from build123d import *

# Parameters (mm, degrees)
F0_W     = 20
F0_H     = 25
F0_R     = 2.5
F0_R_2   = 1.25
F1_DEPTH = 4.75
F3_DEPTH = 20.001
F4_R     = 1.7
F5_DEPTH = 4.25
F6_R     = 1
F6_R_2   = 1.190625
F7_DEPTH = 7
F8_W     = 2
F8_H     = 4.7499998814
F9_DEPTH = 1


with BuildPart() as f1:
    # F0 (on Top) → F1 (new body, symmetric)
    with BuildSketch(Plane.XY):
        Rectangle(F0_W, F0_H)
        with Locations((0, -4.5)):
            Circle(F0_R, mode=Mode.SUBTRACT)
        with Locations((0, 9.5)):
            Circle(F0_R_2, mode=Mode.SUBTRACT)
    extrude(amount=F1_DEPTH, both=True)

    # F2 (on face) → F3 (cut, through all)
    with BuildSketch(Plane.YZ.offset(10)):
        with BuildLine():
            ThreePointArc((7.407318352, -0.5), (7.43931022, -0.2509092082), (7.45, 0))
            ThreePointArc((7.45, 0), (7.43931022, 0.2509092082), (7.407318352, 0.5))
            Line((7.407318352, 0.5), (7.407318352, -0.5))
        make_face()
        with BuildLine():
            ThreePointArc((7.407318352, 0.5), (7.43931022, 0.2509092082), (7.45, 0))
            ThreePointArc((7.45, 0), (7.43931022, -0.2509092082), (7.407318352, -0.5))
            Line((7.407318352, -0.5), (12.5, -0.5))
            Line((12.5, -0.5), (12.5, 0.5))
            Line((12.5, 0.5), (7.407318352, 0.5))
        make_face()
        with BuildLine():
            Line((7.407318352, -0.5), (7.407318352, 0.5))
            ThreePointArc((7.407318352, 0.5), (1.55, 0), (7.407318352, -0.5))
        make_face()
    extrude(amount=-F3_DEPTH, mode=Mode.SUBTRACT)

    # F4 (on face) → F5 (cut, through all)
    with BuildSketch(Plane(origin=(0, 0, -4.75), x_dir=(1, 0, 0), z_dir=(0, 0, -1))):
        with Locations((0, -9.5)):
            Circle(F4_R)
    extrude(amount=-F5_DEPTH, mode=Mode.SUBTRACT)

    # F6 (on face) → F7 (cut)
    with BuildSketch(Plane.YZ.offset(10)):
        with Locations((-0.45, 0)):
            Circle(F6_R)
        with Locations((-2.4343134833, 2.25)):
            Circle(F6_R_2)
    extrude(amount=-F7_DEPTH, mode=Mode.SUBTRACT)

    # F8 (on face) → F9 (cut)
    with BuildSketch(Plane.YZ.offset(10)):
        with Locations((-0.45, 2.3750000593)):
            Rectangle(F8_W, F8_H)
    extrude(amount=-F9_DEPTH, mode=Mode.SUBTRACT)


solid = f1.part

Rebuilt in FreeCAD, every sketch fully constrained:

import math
import FreeCAD as App
import Part
import Sketcher
from FreeCAD import Vector

doc = App.newDocument("Part")
body = doc.addObject("PartDesign::Body", "Body")

sketch1 = body.newObject("Sketcher::SketchObject", "Sketch")
sketch1.AttachmentSupport = (doc.getObject("XY_Plane"), [""])
sketch1.MapMode = "FlatFace"
sketch1.addGeometry([
    Part.LineSegment(Vector(-10, 12.5, 0), Vector(-10, -12.5, 0)),
    Part.LineSegment(Vector(-10, -12.5, 0), Vector(10, -12.5, 0)),
    Part.LineSegment(Vector(10, -12.5, 0), Vector(10, 12.5, 0)),
    Part.LineSegment(Vector(10, 12.5, 0), Vector(-10, 12.5, 0)),
    Part.Circle(Vector(0, -4.5, 0), Vector(0, 0, 1), 2.5),
    Part.Circle(Vector(0, 9.5, 0), Vector(0, 0, 1), 1.2),
], False)
sketch1.addConstraint([
    Sketcher.Constraint("Coincident", 0, 2, 1, 1),
    Sketcher.Constraint("Coincident", 1, 2, 2, 1),
    Sketcher.Constraint("Coincident", 2, 2, 3, 1),
    Sketcher.Constraint("Coincident", 3, 2, 0, 1),
    Sketcher.Constraint("Vertical", 0),
    Sketcher.Constraint("Horizontal", 1),
    Sketcher.Constraint("Vertical", 2),
    Sketcher.Constraint("Horizontal", 3),
    Sketcher.Constraint("Symmetric", 0, 2, 2, 2, -1, 1),
    Sketcher.Constraint("PointOnObject", 4, 3, -2),
    Sketcher.Constraint("PointOnObject", 5, 3, -2),
    Sketcher.Constraint("Diameter", 4, 5.0),
    Sketcher.Constraint("Diameter", 5, 2.5),
    Sketcher.Constraint("DistanceX", 1, 1, 1, 2, 20.0),
    Sketcher.Constraint("DistanceY", 0, 2, 0, 1, 25.0),
    Sketcher.Constraint("DistanceY", 4, 3, 5, 3, 14.0),
    Sketcher.Constraint("DistanceY", 0, 2, 4, 3, 8.0),
])
pad1 = body.newObject("PartDesign::Pad", "Pad")
pad1.Profile = sketch1
pad1.Length = 9.5
pad1.Midplane = True

sketch2 = body.newObject("Sketcher::SketchObject", "Sketch001")
sketch2.AttachmentSupport = (doc.getObject("YZ_Plane"), [""])
sketch2.MapMode = "FlatFace"
sketch2.AttachmentOffset = App.Placement(Vector(0, 0, 10), App.Rotation())
sketch2.addGeometry([
    Part.LineSegment(Vector(7.4, -0.5, 0), Vector(12.5, -0.5, 0)),
    Part.LineSegment(Vector(12.5, -0.5, 0), Vector(12.5, 0.5, 0)),
    Part.LineSegment(Vector(12.5, 0.5, 0), Vector(7.4, 0.5, 0)),
    Part.ArcOfCircle(Part.Circle(Vector(4.5, 0, 0), Vector(0, 0, 1), 3), math.radians(10), math.radians(350)),
], False)
sketch2.addConstraint([
    Sketcher.Constraint("Coincident", 0, 2, 1, 1),
    Sketcher.Constraint("Coincident", 1, 2, 2, 1),
    Sketcher.Constraint("Coincident", 2, 2, 3, 1),
    Sketcher.Constraint("Coincident", 3, 2, 0, 1),
    Sketcher.Constraint("Horizontal", 0),
    Sketcher.Constraint("Vertical", 1),
    Sketcher.Constraint("Horizontal", 2),
    Sketcher.Constraint("Symmetric", 2, 2, 3, 2, -1),
    Sketcher.Constraint("DistanceY", 1, 1, 1, 2, 1.0),
    Sketcher.Constraint("Radius", 3, 2.95),
    Sketcher.Constraint("DistanceX", 3, 3, 0, 2, 8.0),
    Sketcher.Constraint("DistanceX", -1, 1, 3, 3, 4.5),
])
pocket1 = body.newObject("PartDesign::Pocket", "Pocket")
pocket1.Profile = sketch2
pocket1.Type = "ThroughAll"

sketch3 = body.newObject("Sketcher::SketchObject", "Sketch002")
sketch3.AttachmentSupport = (doc.getObject("XY_Plane"), [""])
sketch3.MapMode = "FlatFace"
sketch3.AttachmentOffset = App.Placement(Vector(0, 0, -4.75), App.Rotation())
sketch3.addGeometry(Part.Circle(Vector(0, 9.5, 0), Vector(0, 0, 1), 1.7), False)
sketch3.addConstraint([
    Sketcher.Constraint("PointOnObject", 0, 3, -2),
    Sketcher.Constraint("Diameter", 0, 3.4),
    Sketcher.Constraint("DistanceY", -1, 1, 0, 3, 9.5),
])
pocket2 = body.newObject("PartDesign::Pocket", "Pocket001")
pocket2.Profile = sketch3
pocket2.Length = 4.25
pocket2.Reversed = True

sketch4 = body.newObject("Sketcher::SketchObject", "Sketch003")
sketch4.AttachmentSupport = (doc.getObject("YZ_Plane"), [""])
sketch4.MapMode = "FlatFace"
sketch4.AttachmentOffset = App.Placement(Vector(0, 0, 10), App.Rotation())
sketch4.addGeometry([
    Part.Circle(Vector(-0.5, 0, 0), Vector(0, 0, 1), 1),
    Part.Circle(Vector(-2.4, 2.2, 0), Vector(0, 0, 1), 1.2),
], False)
sketch4.addConstraint([
    Sketcher.Constraint("PointOnObject", 0, 3, -1),
    Sketcher.Constraint("Diameter", 0, 2.0),
    Sketcher.Constraint("Diameter", 1, 2.38125),
    Sketcher.Constraint("DistanceX", 0, 3, -1, 1, 0.45),
    Sketcher.Constraint("DistanceY", -1, 1, 1, 3, 2.25),
    Sketcher.Constraint("DistanceX", 1, 3, -1, 1, 2.434313),
])
pocket3 = body.newObject("PartDesign::Pocket", "Pocket002")
pocket3.Profile = sketch4
pocket3.Length = 7

sketch5 = body.newObject("Sketcher::SketchObject", "Sketch004")
sketch5.AttachmentSupport = (doc.getObject("YZ_Plane"), [""])
sketch5.MapMode = "FlatFace"
sketch5.AttachmentOffset = App.Placement(Vector(0, 0, 10), App.Rotation())
sketch5.addGeometry([
    Part.LineSegment(Vector(-1.4, 4.8, 0), Vector(-1.4, 0, 0)),
    Part.LineSegment(Vector(-1.4, 0, 0), Vector(0.6, 0, 0)),
    Part.LineSegment(Vector(0.6, 0, 0), Vector(0.6, 4.8, 0)),
    Part.LineSegment(Vector(0.6, 4.8, 0), Vector(-1.4, 4.8, 0)),
], False)
sketch5.addConstraint([
    Sketcher.Constraint("Coincident", 0, 2, 1, 1),
    Sketcher.Constraint("Coincident", 1, 2, 2, 1),
    Sketcher.Constraint("Coincident", 2, 2, 3, 1),
    Sketcher.Constraint("Coincident", 3, 2, 0, 1),
    Sketcher.Constraint("Vertical", 0),
    Sketcher.Constraint("Horizontal", 1),
    Sketcher.Constraint("Vertical", 2),
    Sketcher.Constraint("Horizontal", 3),
    Sketcher.Constraint("PointOnObject", 0, 2, -1),
    Sketcher.Constraint("DistanceX", 1, 1, 1, 2, 2.0),
    Sketcher.Constraint("DistanceY", 0, 2, 0, 1, 4.75),
    Sketcher.Constraint("DistanceX", 0, 2, -1, 1, 1.45),
])
pocket4 = body.newObject("PartDesign::Pocket", "Pocket003")
pocket4.Profile = sketch5
pocket4.Length = 1

doc.recompute()
